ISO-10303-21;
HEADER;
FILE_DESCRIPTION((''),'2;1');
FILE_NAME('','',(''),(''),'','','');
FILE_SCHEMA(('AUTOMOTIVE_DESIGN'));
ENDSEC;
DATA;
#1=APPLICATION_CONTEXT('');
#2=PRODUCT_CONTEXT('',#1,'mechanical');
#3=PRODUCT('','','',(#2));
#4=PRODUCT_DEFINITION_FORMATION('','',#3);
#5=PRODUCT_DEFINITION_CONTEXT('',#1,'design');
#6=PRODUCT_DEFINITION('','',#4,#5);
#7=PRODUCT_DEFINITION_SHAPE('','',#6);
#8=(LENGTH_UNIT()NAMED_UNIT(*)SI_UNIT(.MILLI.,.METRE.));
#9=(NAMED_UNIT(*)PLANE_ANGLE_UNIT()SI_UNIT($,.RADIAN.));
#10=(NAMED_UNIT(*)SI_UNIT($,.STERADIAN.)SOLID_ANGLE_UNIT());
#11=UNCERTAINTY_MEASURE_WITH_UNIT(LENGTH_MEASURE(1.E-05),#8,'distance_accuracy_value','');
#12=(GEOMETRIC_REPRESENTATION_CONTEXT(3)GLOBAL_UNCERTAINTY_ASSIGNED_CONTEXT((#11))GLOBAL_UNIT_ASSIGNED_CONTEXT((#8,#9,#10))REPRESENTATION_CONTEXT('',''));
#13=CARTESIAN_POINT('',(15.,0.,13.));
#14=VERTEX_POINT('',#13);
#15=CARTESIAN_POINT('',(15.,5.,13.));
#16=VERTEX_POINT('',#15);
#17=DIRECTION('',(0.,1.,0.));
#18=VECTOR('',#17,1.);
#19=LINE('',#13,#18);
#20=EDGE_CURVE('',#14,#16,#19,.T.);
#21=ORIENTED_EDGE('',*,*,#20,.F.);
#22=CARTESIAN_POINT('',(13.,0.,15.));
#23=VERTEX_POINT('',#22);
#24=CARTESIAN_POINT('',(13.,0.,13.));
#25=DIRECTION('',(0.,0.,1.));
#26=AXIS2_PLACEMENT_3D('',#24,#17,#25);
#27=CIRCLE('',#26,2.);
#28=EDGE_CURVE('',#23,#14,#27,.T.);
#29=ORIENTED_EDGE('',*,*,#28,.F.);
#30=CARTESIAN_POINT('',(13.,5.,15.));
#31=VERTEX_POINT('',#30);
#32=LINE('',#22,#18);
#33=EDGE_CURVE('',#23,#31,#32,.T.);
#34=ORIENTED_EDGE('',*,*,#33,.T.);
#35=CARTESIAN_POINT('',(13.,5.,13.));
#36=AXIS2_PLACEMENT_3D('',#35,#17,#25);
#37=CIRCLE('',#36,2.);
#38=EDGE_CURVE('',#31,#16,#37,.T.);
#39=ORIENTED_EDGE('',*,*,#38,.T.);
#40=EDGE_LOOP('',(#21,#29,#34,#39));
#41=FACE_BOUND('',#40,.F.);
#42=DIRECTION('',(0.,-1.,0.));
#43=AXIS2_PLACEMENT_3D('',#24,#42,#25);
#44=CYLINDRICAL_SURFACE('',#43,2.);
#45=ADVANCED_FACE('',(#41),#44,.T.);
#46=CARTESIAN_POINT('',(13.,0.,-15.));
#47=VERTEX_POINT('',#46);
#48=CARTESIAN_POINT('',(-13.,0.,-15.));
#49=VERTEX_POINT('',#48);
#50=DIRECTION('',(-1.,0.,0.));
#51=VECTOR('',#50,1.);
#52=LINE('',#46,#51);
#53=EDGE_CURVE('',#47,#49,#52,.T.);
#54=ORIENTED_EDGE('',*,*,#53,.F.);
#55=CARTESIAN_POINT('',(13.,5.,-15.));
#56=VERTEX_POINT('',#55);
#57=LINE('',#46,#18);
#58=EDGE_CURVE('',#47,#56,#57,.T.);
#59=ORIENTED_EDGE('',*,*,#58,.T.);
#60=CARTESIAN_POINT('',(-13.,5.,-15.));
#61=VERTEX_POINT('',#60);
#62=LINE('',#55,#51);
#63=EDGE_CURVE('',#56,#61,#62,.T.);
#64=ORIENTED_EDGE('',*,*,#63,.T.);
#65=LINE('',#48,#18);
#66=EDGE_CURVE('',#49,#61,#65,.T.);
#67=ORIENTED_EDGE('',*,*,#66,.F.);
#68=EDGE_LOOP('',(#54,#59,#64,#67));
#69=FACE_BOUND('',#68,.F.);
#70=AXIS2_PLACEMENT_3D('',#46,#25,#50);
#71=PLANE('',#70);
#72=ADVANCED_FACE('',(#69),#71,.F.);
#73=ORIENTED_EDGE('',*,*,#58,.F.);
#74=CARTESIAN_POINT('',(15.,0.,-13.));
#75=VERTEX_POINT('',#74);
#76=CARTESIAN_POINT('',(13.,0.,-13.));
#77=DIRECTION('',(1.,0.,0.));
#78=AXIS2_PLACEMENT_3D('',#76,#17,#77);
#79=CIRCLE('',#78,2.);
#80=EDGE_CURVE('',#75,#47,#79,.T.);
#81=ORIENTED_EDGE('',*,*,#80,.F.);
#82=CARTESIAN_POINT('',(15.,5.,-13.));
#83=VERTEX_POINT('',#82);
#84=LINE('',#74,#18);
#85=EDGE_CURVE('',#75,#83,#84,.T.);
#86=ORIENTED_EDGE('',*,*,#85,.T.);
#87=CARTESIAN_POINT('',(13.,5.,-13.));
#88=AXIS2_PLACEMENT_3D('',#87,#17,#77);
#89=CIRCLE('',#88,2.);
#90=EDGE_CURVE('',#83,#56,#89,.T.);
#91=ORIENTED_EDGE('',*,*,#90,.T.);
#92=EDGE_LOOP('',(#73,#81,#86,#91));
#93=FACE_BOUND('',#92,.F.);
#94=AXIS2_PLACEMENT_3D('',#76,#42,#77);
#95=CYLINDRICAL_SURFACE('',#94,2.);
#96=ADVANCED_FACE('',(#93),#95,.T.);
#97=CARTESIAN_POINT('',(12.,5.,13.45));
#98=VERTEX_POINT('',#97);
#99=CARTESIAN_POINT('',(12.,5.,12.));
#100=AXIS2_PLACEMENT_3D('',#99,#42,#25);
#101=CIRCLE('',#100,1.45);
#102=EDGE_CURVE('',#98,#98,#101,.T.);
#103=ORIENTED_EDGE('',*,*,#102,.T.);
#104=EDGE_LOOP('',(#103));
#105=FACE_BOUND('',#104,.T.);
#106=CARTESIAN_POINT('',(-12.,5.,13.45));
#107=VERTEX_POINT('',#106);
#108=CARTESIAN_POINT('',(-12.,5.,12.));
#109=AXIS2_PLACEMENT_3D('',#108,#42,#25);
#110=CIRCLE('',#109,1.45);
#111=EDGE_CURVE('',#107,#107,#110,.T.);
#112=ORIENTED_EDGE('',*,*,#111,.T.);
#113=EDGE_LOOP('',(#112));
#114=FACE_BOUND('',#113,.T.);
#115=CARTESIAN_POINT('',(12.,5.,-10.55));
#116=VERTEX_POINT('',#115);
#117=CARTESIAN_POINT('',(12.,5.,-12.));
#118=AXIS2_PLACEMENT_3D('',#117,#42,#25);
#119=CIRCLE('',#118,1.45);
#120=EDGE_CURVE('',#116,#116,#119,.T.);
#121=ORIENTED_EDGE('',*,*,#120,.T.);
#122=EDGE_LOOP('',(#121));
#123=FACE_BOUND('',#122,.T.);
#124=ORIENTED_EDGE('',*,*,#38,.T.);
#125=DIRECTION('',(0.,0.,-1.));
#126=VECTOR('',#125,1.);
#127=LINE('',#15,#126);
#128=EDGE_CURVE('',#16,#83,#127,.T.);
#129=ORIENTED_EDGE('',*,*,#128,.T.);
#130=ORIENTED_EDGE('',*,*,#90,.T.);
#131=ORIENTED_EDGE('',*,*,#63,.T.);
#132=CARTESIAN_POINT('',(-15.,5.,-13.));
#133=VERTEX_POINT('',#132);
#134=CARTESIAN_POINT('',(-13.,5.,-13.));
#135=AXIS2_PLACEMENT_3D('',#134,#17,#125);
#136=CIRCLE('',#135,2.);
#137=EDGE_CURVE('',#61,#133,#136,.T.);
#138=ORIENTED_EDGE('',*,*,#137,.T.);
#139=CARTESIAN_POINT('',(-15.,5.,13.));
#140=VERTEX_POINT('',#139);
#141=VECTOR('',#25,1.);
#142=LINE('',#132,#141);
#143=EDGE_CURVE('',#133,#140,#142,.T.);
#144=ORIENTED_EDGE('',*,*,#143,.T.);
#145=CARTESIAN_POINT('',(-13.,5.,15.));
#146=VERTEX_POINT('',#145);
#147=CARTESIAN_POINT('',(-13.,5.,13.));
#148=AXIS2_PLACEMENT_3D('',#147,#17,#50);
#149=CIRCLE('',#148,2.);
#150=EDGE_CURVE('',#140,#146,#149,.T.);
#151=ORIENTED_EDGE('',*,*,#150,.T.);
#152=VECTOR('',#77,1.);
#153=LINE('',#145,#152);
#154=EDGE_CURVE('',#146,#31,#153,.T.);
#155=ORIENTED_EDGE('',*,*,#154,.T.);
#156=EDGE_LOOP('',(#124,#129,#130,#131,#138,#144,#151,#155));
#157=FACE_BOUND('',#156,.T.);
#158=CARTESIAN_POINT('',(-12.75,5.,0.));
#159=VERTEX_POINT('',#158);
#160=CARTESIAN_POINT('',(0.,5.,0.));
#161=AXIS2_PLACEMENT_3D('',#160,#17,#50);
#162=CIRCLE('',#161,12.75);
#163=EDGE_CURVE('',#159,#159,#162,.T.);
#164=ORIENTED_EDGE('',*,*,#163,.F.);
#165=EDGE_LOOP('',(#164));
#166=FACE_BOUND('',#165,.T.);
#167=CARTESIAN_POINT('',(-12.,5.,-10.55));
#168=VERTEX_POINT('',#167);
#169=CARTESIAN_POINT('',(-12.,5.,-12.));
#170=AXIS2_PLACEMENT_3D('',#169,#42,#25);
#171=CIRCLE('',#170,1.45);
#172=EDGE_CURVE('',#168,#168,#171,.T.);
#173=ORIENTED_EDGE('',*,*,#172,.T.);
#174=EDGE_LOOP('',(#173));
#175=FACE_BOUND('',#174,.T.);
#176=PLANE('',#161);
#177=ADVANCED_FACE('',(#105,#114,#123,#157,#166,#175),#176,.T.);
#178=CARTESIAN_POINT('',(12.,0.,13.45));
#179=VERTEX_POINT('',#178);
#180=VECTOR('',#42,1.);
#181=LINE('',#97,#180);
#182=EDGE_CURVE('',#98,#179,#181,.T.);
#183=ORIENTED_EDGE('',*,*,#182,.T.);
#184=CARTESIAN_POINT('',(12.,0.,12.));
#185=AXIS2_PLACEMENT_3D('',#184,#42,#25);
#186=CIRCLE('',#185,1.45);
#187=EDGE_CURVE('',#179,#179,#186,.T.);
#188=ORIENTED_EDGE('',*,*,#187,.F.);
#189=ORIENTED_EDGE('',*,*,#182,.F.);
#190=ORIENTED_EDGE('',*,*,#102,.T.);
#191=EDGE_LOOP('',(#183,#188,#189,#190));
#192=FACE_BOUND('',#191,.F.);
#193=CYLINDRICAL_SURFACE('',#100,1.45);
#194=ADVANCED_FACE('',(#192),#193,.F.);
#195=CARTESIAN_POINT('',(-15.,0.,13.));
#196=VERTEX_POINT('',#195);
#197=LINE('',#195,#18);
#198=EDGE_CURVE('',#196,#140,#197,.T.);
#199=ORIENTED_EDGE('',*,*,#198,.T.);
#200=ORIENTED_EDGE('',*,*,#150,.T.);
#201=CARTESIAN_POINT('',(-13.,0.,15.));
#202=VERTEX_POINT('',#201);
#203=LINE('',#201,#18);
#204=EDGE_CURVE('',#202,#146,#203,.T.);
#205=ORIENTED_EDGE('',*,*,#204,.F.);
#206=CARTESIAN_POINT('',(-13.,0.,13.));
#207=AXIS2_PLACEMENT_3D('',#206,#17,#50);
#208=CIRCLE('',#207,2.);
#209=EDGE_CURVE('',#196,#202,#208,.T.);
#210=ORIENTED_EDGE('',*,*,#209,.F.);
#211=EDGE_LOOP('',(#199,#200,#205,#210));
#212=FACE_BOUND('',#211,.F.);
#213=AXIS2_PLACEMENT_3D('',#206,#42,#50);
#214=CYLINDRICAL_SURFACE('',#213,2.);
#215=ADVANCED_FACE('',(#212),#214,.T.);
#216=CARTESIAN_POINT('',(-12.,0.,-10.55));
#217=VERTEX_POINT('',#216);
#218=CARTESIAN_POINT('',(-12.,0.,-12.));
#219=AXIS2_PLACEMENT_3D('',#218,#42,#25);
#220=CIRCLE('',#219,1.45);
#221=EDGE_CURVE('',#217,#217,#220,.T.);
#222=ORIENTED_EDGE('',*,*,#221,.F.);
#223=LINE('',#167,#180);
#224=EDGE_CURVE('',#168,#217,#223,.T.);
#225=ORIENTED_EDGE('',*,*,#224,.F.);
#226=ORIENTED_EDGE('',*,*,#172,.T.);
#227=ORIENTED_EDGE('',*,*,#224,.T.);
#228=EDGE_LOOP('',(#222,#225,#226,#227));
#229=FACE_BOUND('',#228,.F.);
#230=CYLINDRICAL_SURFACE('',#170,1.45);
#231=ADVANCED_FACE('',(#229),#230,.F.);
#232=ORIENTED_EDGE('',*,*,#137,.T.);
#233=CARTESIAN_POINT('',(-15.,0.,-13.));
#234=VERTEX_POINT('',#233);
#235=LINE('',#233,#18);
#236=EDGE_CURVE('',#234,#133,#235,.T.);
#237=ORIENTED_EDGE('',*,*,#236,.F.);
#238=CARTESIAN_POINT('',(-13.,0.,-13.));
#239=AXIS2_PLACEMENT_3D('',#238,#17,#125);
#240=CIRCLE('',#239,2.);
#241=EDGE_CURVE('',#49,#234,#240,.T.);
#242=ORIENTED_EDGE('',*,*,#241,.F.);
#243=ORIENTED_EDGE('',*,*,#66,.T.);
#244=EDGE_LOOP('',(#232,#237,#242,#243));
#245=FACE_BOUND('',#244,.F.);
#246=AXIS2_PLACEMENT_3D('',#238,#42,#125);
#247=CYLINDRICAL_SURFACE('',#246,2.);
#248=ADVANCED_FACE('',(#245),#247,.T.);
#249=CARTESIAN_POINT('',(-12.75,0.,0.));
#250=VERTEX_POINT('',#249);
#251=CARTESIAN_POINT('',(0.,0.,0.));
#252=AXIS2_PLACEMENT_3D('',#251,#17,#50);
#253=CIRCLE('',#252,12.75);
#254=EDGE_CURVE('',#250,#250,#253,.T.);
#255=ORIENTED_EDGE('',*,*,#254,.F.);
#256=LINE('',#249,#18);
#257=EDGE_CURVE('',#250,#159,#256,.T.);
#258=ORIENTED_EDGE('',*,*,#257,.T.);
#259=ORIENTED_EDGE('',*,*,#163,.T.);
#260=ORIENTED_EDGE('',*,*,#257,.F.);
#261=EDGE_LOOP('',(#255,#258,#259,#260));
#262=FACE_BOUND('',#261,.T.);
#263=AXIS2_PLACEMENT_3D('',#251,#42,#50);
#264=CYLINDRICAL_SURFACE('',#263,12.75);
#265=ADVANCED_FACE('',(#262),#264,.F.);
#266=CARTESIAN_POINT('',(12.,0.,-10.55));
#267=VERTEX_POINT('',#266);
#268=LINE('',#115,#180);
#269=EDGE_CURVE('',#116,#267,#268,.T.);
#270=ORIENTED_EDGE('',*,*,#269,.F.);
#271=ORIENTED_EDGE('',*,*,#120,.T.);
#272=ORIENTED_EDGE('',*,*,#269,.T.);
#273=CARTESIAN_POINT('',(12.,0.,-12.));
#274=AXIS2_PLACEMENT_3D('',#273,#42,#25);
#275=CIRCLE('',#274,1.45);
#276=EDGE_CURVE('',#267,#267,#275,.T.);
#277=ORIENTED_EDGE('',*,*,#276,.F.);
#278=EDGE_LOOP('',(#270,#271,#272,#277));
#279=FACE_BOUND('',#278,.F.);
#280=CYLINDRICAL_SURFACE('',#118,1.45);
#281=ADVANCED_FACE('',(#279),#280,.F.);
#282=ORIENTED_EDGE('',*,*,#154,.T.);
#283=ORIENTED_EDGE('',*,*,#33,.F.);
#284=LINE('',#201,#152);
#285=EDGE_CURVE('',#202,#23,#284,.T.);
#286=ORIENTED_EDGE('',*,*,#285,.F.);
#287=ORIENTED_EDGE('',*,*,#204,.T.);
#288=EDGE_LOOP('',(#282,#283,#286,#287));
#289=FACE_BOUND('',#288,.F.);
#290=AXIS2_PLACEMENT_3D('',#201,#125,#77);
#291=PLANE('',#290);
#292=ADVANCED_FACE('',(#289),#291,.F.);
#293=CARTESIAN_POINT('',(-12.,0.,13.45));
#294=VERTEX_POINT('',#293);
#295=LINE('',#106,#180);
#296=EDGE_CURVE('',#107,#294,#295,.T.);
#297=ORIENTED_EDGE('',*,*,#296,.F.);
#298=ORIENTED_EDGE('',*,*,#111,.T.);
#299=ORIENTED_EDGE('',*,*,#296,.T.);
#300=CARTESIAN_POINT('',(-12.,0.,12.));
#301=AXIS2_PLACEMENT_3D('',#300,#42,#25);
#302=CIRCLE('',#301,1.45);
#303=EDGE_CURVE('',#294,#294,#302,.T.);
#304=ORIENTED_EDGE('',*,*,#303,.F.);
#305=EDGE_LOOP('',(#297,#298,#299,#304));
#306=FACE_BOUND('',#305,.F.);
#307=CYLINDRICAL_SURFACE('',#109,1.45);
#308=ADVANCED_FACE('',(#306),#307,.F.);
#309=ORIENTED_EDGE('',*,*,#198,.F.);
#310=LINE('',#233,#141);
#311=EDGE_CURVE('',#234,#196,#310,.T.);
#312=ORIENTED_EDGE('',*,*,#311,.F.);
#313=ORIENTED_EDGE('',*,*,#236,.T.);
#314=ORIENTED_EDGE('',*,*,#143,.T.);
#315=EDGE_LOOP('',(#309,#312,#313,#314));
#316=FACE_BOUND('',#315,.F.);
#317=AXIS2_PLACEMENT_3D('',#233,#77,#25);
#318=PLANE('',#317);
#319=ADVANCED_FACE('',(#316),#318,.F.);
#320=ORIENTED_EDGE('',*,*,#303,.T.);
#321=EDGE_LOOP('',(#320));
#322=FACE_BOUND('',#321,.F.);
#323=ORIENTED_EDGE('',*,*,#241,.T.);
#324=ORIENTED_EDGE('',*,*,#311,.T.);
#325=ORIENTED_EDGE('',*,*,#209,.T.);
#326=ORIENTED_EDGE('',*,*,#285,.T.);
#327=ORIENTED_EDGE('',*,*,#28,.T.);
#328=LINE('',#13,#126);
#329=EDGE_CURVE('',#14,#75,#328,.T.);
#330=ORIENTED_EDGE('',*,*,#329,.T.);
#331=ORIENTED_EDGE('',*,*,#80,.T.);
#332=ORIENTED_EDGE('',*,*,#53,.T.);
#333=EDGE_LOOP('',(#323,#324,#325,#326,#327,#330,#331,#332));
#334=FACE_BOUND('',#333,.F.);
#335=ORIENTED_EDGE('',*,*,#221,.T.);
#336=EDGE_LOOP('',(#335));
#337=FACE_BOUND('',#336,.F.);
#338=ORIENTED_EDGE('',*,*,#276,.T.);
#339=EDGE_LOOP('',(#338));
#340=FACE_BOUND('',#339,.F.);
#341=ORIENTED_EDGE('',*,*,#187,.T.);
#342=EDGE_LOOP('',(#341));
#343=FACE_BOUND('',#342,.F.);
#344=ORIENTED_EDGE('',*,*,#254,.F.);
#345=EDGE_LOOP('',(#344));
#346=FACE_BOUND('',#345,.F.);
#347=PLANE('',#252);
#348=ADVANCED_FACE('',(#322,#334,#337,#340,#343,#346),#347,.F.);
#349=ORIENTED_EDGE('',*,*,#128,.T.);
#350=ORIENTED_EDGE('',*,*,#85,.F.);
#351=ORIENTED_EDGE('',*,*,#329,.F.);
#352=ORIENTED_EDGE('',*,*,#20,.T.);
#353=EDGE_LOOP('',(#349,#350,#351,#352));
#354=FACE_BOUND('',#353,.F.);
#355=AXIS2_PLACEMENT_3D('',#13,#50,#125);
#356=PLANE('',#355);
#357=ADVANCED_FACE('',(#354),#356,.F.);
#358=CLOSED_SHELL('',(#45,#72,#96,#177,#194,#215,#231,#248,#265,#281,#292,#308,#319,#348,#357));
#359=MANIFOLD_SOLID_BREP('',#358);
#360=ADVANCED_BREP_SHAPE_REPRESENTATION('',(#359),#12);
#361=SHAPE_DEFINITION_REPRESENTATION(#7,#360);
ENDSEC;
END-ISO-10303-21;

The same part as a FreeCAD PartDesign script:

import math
import FreeCAD as App
import Part
import Sketcher

V = App.Vector
Q = App.Units.Quantity

doc = App.newDocument("Part")
body = doc.addObject("PartDesign::Body", "Body")

# Sketch on XZ plane
sketch1 = body.newObject("Sketcher::SketchObject", "Sketch")
sketch1.AttachmentSupport = (doc.getObject("XZ_Plane"), [""])
sketch1.MapMode = "FlatFace"
sketch1.addGeometry(Part.ArcOfCircle(Part.Circle(V(-13, 13, 0), V(0, 0, 1), 2), math.radians(90), math.radians(180)), False)
sketch1.addGeometry(Part.LineSegment(V(-13, 15, 0), V(13, 15, 0)), False)
sketch1.addGeometry(Part.ArcOfCircle(Part.Circle(V(13, 13, 0), V(0, 0, 1), 2), math.radians(0), math.radians(90)), False)
sketch1.addGeometry(Part.LineSegment(V(15, 13, 0), V(15, -13, 0)), False)
sketch1.addGeometry(Part.ArcOfCircle(Part.Circle(V(13, -13, 0), V(0, 0, 1), 2), math.radians(-90), math.radians(0)), False)
sketch1.addGeometry(Part.LineSegment(V(13, -15, 0), V(-13, -15, 0)), False)
sketch1.addGeometry(Part.ArcOfCircle(Part.Circle(V(-13, -13, 0), V(0, 0, 1), 2), math.radians(180), math.radians(270)), False)
sketch1.addGeometry(Part.LineSegment(V(-15, -13, 0), V(-15, 13, 0)), False)
sketch1.addGeometry(Part.Circle(V(0, 0, 0), V(0, 0, 1), 12.8), False)
sketch1.addConstraint(Sketcher.Constraint("Tangent", 0, 1, 1, 1))
sketch1.addConstraint(Sketcher.Constraint("Tangent", 1, 2, 2, 2))
sketch1.addConstraint(Sketcher.Constraint("Tangent", 2, 1, 3, 1))
sketch1.addConstraint(Sketcher.Constraint("Tangent", 3, 2, 4, 2))
sketch1.addConstraint(Sketcher.Constraint("Tangent", 4, 1, 5, 1))
sketch1.addConstraint(Sketcher.Constraint("Tangent", 5, 2, 6, 2))
sketch1.addConstraint(Sketcher.Constraint("Tangent", 6, 1, 7, 1))
sketch1.addConstraint(Sketcher.Constraint("Tangent", 7, 2, 0, 2))
sketch1.addConstraint(Sketcher.Constraint("Horizontal", 1))
sketch1.addConstraint(Sketcher.Constraint("Vertical", 3))
sketch1.addConstraint(Sketcher.Constraint("Horizontal", 5))
sketch1.addConstraint(Sketcher.Constraint("Vertical", 7))
sketch1.addConstraint(Sketcher.Constraint("Coincident", 8, 3, -1, 1))
sketch1.addConstraint(Sketcher.Constraint("Equal", 0, 2))
sketch1.addConstraint(Sketcher.Constraint("Equal", 2, 4))
sketch1.addConstraint(Sketcher.Constraint("Equal", 4, 6))
sketch1.addConstraint(Sketcher.Constraint("Symmetric", 0, 3, 4, 3, -1, 1))
sketch1.addConstraint(Sketcher.Constraint("Equal", 5, 3))
sketch1.addConstraint(Sketcher.Constraint("Radius", 0, Q("2 mm")))
sketch1.addConstraint(Sketcher.Constraint("Diameter", 8, Q("25.5 mm")))
sketch1.addConstraint(Sketcher.Constraint("DistanceX", 1, 1, 1, 2, Q("26 mm")))
pad1 = body.newObject("PartDesign::Pad", "Pad")
pad1.Profile = sketch1
pad1.Length = 5
pad1.Reversed = True

# Sketch on XZ plane
sketch2 = body.newObject("Sketcher::SketchObject", "Sketch001")
sketch2.AttachmentSupport = (doc.getObject("XZ_Plane"), [""])
sketch2.MapMode = "FlatFace"
sketch2.AttachmentOffset = App.Placement(V(0, 0, -5), App.Rotation())
sketch2.addGeometry(Part.Circle(V(-12, -12, 0), V(0, 0, 1), 1.4), False)
sketch2.addGeometry(Part.Circle(V(12, -12, 0), V(0, 0, 1), 1.4), False)
sketch2.addGeometry(Part.Circle(V(12, 12, 0), V(0, 0, 1), 1.4), False)
sketch2.addGeometry(Part.Circle(V(-12, 12, 0), V(0, 0, 1), 1.4), False)
sketch2.addConstraint(Sketcher.Constraint("Equal", 0, 1))
sketch2.addConstraint(Sketcher.Constraint("Equal", 1, 2))
sketch2.addConstraint(Sketcher.Constraint("Equal", 2, 3))
sketch2.addConstraint(Sketcher.Constraint("Symmetric", 0, 3, 2, 3, -1, 1))
sketch2.addConstraint(Sketcher.Constraint("Symmetric", 1, 3, 3, 3, -1, 1))
sketch2.addConstraint(Sketcher.Constraint("Symmetric", 0, 3, 1, 3, -2))
sketch2.addConstraint(Sketcher.Constraint("Diameter", 0, Q("2.9 mm")))
sketch2.addConstraint(Sketcher.Constraint("DistanceX", 0, 3, -1, 1, Q("12 mm")))
sketch2.addConstraint(Sketcher.Constraint("DistanceY", 0, 3, -1, 1, Q("12 mm")))
doc.recompute()
hole = body.newObject("PartDesign::Hole", "Hole")
hole.Profile = sketch2
hole.ThreadType = "None"
hole.Diameter = 2.9
hole.DepthType = "Dimension"
hole.Depth = 24
hole.DrillPoint = "Angled"
hole.DrillPointAngle = 118
hole.Reversed = True

doc.recompute()
